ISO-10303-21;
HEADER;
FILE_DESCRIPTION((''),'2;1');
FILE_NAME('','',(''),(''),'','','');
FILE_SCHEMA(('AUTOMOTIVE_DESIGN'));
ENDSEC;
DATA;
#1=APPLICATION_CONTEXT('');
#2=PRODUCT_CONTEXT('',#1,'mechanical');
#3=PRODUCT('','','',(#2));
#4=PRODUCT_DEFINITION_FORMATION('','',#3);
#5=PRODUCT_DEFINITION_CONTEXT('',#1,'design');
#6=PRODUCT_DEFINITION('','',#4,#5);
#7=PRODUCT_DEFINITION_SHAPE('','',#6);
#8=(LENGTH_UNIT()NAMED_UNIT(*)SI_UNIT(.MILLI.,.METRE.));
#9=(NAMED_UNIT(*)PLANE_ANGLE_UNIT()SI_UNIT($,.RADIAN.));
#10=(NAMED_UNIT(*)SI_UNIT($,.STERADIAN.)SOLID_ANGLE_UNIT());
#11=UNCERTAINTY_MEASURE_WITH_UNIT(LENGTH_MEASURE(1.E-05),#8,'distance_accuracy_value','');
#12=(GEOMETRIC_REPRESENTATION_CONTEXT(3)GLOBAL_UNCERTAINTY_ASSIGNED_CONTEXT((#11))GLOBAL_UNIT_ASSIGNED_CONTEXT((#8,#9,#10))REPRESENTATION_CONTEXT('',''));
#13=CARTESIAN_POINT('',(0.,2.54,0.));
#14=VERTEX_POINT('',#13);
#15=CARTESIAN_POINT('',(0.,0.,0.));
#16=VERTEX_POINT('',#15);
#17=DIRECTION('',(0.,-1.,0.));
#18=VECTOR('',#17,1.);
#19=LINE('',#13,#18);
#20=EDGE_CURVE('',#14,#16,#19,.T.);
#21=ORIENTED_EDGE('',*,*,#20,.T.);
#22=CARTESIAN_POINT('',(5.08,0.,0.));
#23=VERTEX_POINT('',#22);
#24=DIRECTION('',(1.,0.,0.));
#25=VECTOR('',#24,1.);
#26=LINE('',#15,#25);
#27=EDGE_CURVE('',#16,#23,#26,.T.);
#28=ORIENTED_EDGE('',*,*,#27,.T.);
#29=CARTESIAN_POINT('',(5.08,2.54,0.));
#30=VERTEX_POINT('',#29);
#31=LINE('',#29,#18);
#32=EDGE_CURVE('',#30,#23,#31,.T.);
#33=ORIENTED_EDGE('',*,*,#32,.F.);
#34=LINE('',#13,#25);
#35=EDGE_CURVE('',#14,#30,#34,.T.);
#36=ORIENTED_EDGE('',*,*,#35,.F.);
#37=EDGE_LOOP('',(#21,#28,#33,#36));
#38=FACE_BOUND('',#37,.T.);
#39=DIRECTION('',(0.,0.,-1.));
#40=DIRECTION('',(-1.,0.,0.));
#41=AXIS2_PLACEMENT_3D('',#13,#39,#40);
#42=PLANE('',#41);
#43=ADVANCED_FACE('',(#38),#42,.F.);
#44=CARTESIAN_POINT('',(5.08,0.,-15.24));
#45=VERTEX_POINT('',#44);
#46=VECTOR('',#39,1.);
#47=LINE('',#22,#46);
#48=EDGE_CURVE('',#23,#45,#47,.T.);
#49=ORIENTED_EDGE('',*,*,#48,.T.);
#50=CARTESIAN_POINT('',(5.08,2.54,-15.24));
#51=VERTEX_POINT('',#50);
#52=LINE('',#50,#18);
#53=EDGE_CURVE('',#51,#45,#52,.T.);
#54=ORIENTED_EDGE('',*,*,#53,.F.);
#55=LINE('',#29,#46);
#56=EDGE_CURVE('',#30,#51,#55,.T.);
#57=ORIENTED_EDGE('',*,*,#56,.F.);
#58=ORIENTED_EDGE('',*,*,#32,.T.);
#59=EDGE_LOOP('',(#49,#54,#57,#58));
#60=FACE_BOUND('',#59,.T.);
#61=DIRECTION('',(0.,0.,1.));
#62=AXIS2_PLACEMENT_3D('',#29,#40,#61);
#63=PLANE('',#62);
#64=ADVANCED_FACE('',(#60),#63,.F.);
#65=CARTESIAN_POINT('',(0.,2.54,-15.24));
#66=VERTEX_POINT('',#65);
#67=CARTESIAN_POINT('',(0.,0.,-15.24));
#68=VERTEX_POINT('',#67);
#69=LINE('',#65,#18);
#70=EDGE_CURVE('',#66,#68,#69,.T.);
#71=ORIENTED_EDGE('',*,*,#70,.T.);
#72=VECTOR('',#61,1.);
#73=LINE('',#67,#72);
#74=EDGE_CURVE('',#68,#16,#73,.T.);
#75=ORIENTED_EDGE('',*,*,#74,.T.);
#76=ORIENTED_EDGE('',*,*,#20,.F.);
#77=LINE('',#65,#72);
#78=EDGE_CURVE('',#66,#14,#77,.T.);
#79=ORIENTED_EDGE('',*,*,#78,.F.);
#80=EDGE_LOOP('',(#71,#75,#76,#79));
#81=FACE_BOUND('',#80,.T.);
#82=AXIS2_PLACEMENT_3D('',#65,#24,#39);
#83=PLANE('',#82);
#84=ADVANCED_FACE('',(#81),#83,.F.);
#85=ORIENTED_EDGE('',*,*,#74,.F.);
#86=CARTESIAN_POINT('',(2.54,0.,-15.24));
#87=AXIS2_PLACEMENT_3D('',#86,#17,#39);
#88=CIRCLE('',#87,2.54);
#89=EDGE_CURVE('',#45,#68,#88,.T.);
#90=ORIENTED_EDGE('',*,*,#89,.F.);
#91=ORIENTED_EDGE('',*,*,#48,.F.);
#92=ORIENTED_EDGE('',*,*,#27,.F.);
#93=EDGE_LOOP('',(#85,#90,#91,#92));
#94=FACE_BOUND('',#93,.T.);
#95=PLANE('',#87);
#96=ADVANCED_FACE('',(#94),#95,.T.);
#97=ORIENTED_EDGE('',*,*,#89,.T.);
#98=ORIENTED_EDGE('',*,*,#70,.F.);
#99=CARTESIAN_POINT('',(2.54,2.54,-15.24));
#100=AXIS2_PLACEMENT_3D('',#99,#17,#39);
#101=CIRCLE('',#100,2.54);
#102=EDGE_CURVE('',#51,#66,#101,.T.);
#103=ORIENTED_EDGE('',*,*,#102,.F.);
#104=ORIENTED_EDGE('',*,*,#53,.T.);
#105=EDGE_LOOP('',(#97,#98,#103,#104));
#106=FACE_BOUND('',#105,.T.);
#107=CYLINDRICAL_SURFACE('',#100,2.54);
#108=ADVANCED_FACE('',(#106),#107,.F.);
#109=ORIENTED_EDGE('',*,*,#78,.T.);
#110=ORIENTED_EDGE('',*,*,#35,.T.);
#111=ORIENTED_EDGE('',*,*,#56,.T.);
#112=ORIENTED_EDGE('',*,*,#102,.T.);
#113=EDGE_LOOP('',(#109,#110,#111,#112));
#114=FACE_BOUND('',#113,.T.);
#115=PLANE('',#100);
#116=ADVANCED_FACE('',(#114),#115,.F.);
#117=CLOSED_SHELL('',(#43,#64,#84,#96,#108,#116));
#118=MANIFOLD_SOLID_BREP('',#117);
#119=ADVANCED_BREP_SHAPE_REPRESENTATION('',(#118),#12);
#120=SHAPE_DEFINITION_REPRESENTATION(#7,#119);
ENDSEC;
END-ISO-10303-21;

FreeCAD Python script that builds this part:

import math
import FreeCAD as App
import Part
import Sketcher

V = App.Vector
Q = App.Units.Quantity

doc = App.newDocument("Part")
body = doc.addObject("PartDesign::Body", "Body")

sketch1 = body.newObject("Sketcher::SketchObject", "Sketch")
sketch1.AttachmentSupport = (doc.getObject("XZ_Plane"), [""])
sketch1.MapMode = "FlatFace"
sketch1.addGeometry([
    Part.LineSegment(V(0, -15.2, 0), V(0, 0, 0)),
    Part.LineSegment(V(0, 0, 0), V(5.1, 0, 0)),
    Part.LineSegment(V(5.1, 0, 0), V(5.1, -15.2, 0)),
    Part.ArcOfCircle(Part.Circle(V(2.5, -15.2, 0), V(0, 0, 1), 2.5), math.radians(0), math.radians(180)),
], False)
sketch1.addConstraint([
    Sketcher.Constraint("Coincident", 0, 2, 1, 1),
    Sketcher.Constraint("Coincident", 1, 2, 2, 1),
    Sketcher.Constraint("Tangent", 2, 2, 3, 1),
    Sketcher.Constraint("Tangent", 3, 2, 0, 1),
    Sketcher.Constraint("Vertical", 0),
    Sketcher.Constraint("Horizontal", 1),
    Sketcher.Constraint("Vertical", 2),
    Sketcher.Constraint("Coincident", 0, 2, -1, 1),
    Sketcher.Constraint("Radius", 3, Q("0.1 in")),
    Sketcher.Constraint("DistanceY", 0, 1, 0, 2, Q("0.6 in")),
])
pad1 = body.newObject("PartDesign::Pad", "Pad")
pad1.Profile = sketch1
pad1.Length = Q("0.1 in")
pad1.Reversed = True

doc.recompute()
